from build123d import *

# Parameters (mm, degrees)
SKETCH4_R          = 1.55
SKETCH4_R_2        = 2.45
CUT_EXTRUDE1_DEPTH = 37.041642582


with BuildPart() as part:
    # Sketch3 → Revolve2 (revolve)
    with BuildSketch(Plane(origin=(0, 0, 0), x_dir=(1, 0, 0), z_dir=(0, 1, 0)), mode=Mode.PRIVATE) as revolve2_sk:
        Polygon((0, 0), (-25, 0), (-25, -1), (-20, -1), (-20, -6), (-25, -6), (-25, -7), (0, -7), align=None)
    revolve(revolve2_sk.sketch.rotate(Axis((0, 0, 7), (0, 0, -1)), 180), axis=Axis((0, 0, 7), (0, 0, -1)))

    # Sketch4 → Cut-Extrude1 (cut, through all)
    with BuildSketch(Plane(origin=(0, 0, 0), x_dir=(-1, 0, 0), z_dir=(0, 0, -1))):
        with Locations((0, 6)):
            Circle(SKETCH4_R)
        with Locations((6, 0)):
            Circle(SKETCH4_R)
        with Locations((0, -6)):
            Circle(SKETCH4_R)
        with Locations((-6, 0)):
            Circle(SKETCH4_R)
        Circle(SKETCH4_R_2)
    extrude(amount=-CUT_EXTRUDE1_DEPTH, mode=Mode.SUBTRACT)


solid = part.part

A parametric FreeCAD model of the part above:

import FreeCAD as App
import Part
import Sketcher

V = App.Vector
Q = App.Units.Quantity


def add_polygon(sketch, points):
    """Adds a closed chain of lines whose ends are joined by coincident constraints."""
    first, n = sketch.GeometryCount, len(points)
    for a, b in zip(points, points[1:] + points[:1]):
        sketch.addGeometry(Part.LineSegment(App.Vector(*a, 0), App.Vector(*b, 0)), False)
    for i in range(n):
        sketch.addConstraint(Sketcher.Constraint("Coincident", first + i, 2, first + (i + 1) % n, 1))

doc = App.newDocument("Part")
body = doc.addObject("PartDesign::Body", "Body")

sketch1 = body.newObject("Sketcher::SketchObject", "Sketch")
sketch1.AttachmentSupport = (doc.getObject("XZ_Plane"), [""])
sketch1.MapMode = "FlatFace"
add_polygon(sketch1, [(0, 0), (-25, 0), (-25, 1), (-20, 1), (-20, 6), (-25, 6), (-25, 7), (0, 7)])
sketch1.addConstraint(Sketcher.Constraint("Horizontal", 0))
sketch1.addConstraint(Sketcher.Constraint("Vertical", 1))
sketch1.addConstraint(Sketcher.Constraint("Horizontal", 2))
sketch1.addConstraint(Sketcher.Constraint("Vertical", 3))
sketch1.addConstraint(Sketcher.Constraint("Horizontal", 4))
sketch1.addConstraint(Sketcher.Constraint("Vertical", 5))
sketch1.addConstraint(Sketcher.Constraint("Horizontal", 6))
sketch1.addConstraint(Sketcher.Constraint("Vertical", 7))
sketch1.addConstraint(Sketcher.Constraint("Coincident", 7, 2, -1, 1))
sketch1.addConstraint(Sketcher.Constraint("Vertical", 1, 2, 4, 2))
sketch1.addConstraint(Sketcher.Constraint("Equal", 4, 3))
sketch1.addConstraint(Sketcher.Constraint("Equal", 1, 5))
sketch1.addConstraint(Sketcher.Constraint("DistanceX", 0, 2, 0, 1, Q("25 mm")))
sketch1.addConstraint(Sketcher.Constraint("DistanceX", 2, 1, 2, 2, Q("5 mm")))
sketch1.addConstraint(Sketcher.Constraint("DistanceY", 1, 1, 1, 2, Q("1 mm")))
revolution = body.newObject("PartDesign::Revolution", "Revolution")
revolution.Profile = sketch1
revolution.ReferenceAxis = (sketch1, ["V_Axis"])
revolution.Angle = 360

sketch2 = body.newObject("Sketcher::SketchObject", "Sketch001")
sketch2.AttachmentSupport = (doc.getObject("XY_Plane"), [""])
sketch2.MapMode = "FlatFace"
sketch2.addGeometry(Part.Circle(V(0, 6, 0), V(0, 0, 1), 1.55), False)
sketch2.addGeometry(Part.Circle(V(-6, 0, 0), V(0, 0, 1), 1.55), False)
sketch2.addGeometry(Part.Circle(V(0, -6, 0), V(0, 0, 1), 1.55), False)
sketch2.addGeometry(Part.Circle(V(6, 0, 0), V(0, 0, 1), 1.55), False)
sketch2.addGeometry(Part.Circle(V(0, 0, 0), V(0, 0, 1), 2.45), False)
sketch2.addConstraint(Sketcher.Constraint("Coincident", 4, 3, -1, 1))
sketch2.addConstraint(Sketcher.Constraint("Equal", 0, 1))
sketch2.addConstraint(Sketcher.Constraint("Equal", 1, 2))
sketch2.addConstraint(Sketcher.Constraint("Equal", 2, 3))
sketch2.addConstraint(Sketcher.Constraint("Symmetric", 0, 3, 2, 3, -1, 1))
sketch2.addConstraint(Sketcher.Constraint("Symmetric", 1, 3, 3, 3, -1, 1))
sketch2.addConstraint(Sketcher.Constraint("PointOnObject", 0, 3, -2))
sketch2.addConstraint(Sketcher.Constraint("PointOnObject", 1, 3, -1))
sketch2.addConstraint(Sketcher.Constraint("Diameter", 0, Q("3.1 mm")))
sketch2.addConstraint(Sketcher.Constraint("Diameter", 4, Q("4.9 mm")))
sketch2.addConstraint(Sketcher.Constraint("DistanceY", -1, 1, 0, 3, Q("6 mm")))
sketch2.addConstraint(Sketcher.Constraint("DistanceX", 1, 3, -1, 1, Q("6 mm")))
pocket1 = body.newObject("PartDesign::Pocket", "Pocket")
pocket1.Profile = sketch2
pocket1.Type = "ThroughAll"
pocket1.Reversed = True

doc.recompute()
